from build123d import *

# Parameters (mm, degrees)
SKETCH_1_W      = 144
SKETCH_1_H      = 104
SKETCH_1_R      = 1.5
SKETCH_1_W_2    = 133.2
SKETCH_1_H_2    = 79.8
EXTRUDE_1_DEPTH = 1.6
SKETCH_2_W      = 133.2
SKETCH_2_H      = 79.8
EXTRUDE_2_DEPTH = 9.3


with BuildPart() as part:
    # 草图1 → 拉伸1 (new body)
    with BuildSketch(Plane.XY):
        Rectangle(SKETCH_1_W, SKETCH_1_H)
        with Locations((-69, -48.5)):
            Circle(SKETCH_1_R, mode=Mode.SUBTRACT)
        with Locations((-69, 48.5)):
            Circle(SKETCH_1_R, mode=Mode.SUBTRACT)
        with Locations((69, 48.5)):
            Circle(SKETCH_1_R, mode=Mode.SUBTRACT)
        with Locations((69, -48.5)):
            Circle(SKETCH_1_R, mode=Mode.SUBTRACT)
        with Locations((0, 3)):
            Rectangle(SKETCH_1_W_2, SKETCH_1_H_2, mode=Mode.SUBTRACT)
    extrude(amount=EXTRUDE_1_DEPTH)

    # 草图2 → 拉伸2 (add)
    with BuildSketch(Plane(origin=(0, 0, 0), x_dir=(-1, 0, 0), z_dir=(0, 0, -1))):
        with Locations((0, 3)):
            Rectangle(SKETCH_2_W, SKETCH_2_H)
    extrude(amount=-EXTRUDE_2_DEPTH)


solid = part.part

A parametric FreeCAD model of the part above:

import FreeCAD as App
import Part
import Sketcher

V = App.Vector


def add_polygon(sketch, points):
    """Adds a closed chain of lines whose ends are joined by coincident constraints."""
    first, n = sketch.GeometryCount, len(points)
    for a, b in zip(points, points[1:] + points[:1]):
        sketch.addGeometry(Part.LineSegment(App.Vector(*a, 0), App.Vector(*b, 0)), False)
    for i in range(n):
        sketch.addConstraint(Sketcher.Constraint("Coincident", first + i, 2, first + (i + 1) % n, 1))

doc = App.newDocument("Part")
body = doc.addObject("PartDesign::Body", "Body")

sketch1 = body.newObject("Sketcher::SketchObject", "Sketch")
sketch1.AttachmentSupport = (doc.getObject("XY_Plane"), [""])
sketch1.MapMode = "FlatFace"
add_polygon(sketch1, [(-72, 52), (-72, -52), (72, -52), (72, 52)])
sketch1.addGeometry(Part.Circle(V(-69, -48.5, 0), V(0, 0, 1), 1.5), False)
sketch1.addGeometry(Part.Circle(V(69, -48.5, 0), V(0, 0, 1), 1.5), False)
sketch1.addGeometry(Part.Circle(V(-69, 48.5, 0), V(0, 0, 1), 1.5), False)
add_polygon(sketch1, [(66.6, -36.9), (-66.6, -36.9), (-66.6, 42.9), (66.6, 42.9)])
sketch1.addGeometry(Part.Circle(V(69, 48.5, 0), V(0, 0, 1), 1.5), False)
sketch1.addConstraint([
    Sketcher.Constraint("Vertical", 0),
    Sketcher.Constraint("Horizontal", 1),
    Sketcher.Constraint("Vertical", 2),
    Sketcher.Constraint("Horizontal", 3),
    Sketcher.Constraint("Horizontal", 7),
    Sketcher.Constraint("Vertical", 8),
    Sketcher.Constraint("Horizontal", 9),
    Sketcher.Constraint("Vertical", 10),
    Sketcher.Constraint("Equal", 4, 5),
    Sketcher.Constraint("Equal", 5, 6),
    Sketcher.Constraint("Equal", 6, 11),
    Sketcher.Constraint("Symmetric", 5, 3, 6, 3, -1, 1),
    Sketcher.Constraint("Symmetric", 4, 3, 11, 3, -1, 1),
    Sketcher.Constraint("Symmetric", 0, 2, 2, 2, -1, 1),
    Sketcher.Constraint("Symmetric", 4, 3, 5, 3, -2),
    Sketcher.Constraint("Diameter", 4, 3.0),
    Sketcher.Constraint("DistanceX", 1, 1, 1, 2, 144.0),
    Sketcher.Constraint("DistanceY", 0, 2, 0, 1, 104.0),
    Sketcher.Constraint("DistanceX", 7, 2, 7, 1, 133.2),
    Sketcher.Constraint("DistanceY", 8, 1, 8, 2, 79.8),
    Sketcher.Constraint("DistanceX", 4, 3, -1, 1, 69.0),
    Sketcher.Constraint("DistanceY", 4, 3, 6, 3, 97.0),
    Sketcher.Constraint("DistanceX", 7, 2, -1, 1, 66.6),
    Sketcher.Constraint("DistanceY", 7, 2, -1, 1, 36.9),
])
pad1 = body.newObject("PartDesign::Pad", "Pad")
pad1.Profile = sketch1
pad1.Length = 1.6

sketch2 = body.newObject("Sketcher::SketchObject", "Sketch001")
sketch2.AttachmentSupport = (doc.getObject("XY_Plane"), [""])
sketch2.MapMode = "FlatFace"
add_polygon(sketch2, [(67, 43), (67, -37), (-67, -37), (-67, 43)])
sketch2.addConstraint([
    Sketcher.Constraint("Vertical", 0),
    Sketcher.Constraint("Horizontal", 1),
    Sketcher.Constraint("Vertical", 2),
    Sketcher.Constraint("Horizontal", 3),
    Sketcher.Constraint("DistanceX", 1, 2, 1, 1, 133.2),
    Sketcher.Constraint("DistanceY", 0, 2, 0, 1, 79.8),
    Sketcher.Constraint("DistanceX", -1, 1, 0, 2, 66.6),
    Sketcher.Constraint("DistanceY", 0, 2, -1, 1, 36.9),
])
pad2 = body.newObject("PartDesign::Pad", "Pad001")
pad2.Profile = sketch2
pad2.Length = 9.3

doc.recompute()
